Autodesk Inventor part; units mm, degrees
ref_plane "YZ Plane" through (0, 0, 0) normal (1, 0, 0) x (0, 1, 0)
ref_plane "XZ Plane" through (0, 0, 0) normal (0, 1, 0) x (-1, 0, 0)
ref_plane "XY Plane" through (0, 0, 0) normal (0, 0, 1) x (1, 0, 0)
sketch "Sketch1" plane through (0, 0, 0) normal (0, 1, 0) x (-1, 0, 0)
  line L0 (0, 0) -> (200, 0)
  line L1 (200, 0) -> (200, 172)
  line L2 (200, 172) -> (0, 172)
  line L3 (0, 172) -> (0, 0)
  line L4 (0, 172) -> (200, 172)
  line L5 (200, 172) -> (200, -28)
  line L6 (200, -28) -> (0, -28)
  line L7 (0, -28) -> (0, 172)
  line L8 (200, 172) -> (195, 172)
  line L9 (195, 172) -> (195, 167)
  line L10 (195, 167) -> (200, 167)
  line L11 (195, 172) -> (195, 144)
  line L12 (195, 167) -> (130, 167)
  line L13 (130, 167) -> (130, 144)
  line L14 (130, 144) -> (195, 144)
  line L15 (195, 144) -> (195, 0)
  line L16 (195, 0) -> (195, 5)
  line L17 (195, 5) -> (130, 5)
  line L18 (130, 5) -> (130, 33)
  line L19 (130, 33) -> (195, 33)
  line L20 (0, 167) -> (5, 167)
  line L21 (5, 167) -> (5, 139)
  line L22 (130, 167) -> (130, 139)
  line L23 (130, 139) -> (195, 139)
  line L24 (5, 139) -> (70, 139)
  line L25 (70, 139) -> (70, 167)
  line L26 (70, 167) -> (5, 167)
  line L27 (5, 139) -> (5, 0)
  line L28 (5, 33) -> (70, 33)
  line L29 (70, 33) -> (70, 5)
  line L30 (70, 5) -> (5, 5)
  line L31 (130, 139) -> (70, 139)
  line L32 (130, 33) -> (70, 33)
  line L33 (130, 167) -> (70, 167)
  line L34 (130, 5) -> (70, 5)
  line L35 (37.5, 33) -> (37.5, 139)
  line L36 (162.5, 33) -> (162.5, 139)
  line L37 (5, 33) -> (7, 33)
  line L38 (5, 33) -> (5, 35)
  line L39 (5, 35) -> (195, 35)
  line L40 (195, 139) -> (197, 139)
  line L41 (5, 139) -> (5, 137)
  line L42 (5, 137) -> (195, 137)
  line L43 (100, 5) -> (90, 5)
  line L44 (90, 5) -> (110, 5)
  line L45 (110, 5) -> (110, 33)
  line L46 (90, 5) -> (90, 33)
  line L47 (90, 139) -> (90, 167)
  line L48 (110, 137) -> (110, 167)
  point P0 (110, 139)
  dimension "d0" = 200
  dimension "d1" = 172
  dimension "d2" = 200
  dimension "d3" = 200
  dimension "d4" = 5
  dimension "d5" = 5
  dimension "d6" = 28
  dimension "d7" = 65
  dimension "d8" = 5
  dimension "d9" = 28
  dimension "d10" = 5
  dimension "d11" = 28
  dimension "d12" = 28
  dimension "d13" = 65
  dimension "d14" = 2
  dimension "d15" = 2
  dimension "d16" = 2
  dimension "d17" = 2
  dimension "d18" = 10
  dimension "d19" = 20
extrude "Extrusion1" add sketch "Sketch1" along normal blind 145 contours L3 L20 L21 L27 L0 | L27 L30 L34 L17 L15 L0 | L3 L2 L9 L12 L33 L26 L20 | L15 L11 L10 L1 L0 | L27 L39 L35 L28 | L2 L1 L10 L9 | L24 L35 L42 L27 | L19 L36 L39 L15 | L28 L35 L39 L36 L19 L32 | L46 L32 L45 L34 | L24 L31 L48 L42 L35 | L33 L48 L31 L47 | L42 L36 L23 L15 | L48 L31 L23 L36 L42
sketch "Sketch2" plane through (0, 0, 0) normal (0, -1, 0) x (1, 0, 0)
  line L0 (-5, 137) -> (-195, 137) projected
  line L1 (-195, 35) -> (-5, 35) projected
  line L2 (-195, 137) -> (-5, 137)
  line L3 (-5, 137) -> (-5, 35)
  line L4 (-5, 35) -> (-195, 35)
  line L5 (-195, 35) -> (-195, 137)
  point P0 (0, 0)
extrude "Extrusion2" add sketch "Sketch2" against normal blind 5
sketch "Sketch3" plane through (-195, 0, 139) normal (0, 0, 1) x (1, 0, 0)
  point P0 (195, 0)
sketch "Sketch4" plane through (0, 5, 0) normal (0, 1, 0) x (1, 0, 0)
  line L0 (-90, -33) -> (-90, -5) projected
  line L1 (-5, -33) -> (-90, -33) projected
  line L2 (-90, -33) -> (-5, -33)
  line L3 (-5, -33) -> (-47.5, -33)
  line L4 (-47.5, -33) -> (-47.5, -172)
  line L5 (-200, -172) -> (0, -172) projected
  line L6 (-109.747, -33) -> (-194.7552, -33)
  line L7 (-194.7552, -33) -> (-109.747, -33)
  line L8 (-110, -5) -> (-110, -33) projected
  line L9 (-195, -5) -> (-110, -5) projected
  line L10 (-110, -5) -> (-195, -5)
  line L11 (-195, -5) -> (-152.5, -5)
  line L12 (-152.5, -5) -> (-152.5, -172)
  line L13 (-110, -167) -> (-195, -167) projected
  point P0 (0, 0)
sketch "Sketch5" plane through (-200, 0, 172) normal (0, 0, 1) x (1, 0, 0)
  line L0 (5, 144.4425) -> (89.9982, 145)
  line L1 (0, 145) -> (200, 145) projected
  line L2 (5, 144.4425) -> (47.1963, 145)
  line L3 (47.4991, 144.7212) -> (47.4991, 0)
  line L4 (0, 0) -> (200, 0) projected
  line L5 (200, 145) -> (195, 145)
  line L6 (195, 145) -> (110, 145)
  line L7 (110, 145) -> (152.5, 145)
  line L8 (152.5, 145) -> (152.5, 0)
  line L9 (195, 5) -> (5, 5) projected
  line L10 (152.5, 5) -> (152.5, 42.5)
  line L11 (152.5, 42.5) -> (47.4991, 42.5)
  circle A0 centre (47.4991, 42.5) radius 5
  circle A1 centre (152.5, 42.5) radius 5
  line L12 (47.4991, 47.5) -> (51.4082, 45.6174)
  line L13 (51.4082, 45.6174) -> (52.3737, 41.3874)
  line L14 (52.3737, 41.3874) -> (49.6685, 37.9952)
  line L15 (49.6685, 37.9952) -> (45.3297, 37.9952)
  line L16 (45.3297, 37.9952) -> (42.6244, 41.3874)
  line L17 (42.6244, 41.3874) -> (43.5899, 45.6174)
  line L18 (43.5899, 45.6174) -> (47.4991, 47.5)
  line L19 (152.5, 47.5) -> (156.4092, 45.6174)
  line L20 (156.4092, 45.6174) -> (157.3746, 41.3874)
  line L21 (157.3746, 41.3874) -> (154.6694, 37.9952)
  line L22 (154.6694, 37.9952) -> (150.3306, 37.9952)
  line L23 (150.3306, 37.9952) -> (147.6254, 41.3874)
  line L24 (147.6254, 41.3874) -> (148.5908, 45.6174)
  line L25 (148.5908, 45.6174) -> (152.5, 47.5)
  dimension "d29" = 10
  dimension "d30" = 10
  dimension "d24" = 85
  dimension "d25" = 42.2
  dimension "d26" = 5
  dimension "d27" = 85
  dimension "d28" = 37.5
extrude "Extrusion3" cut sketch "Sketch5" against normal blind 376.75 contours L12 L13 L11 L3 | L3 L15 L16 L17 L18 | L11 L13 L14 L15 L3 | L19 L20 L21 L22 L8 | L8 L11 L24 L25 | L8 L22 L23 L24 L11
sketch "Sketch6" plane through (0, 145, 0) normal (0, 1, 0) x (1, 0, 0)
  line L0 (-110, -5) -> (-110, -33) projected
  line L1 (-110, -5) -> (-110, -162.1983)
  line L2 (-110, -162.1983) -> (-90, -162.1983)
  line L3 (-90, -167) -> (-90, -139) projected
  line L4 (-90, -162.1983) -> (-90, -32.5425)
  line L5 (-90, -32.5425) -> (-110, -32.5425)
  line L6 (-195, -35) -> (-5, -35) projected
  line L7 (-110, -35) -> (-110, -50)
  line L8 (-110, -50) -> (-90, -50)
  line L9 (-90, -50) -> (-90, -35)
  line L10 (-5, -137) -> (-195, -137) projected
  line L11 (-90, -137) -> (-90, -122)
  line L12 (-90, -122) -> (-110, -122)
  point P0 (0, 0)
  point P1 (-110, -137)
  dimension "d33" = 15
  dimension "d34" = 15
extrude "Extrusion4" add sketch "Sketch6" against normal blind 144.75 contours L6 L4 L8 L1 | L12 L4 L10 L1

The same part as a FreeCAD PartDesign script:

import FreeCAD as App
import Part
import Sketcher

doc = App.newDocument("Part")
body = doc.addObject("PartDesign::Body", "Body")

sketch1 = body.newObject("Sketcher::SketchObject", "Sketch")
sketch1.AttachmentSupport = (doc.getObject("XZ_Plane"), [""])
sketch1.MapMode = "FlatFace"
sketch1.addGeometry(Part.LineSegment(App.Vector(0, 0, 0), App.Vector(-200, 0, 0)), False)
sketch1.addGeometry(Part.LineSegment(App.Vector(-200, 0, 0), App.Vector(-200, 172, 0)), False)
sketch1.addGeometry(Part.LineSegment(App.Vector(-200, 172, 0), App.Vector(0, 172, 0)), False)
sketch1.addGeometry(Part.LineSegment(App.Vector(0, 172, 0), App.Vector(0, 0, 0)), False)
sketch1.addGeometry(Part.LineSegment(App.Vector(-5, 139, 0), App.Vector(-5, 167, 0)), False)
sketch1.addGeometry(Part.LineSegment(App.Vector(-5, 167, 0), App.Vector(-90, 167, 0)), False)
sketch1.addGeometry(Part.LineSegment(App.Vector(-90, 167, 0), App.Vector(-90, 139, 0)), False)
sketch1.addGeometry(Part.LineSegment(App.Vector(-90, 139, 0), App.Vector(-5, 139, 0)), False)
sketch1.addGeometry(Part.LineSegment(App.Vector(-5, 35, 0), App.Vector(-5, 137, 0)), False)
sketch1.addGeometry(Part.LineSegment(App.Vector(-5, 137, 0), App.Vector(-195, 137, 0)), False)
sketch1.addGeometry(Part.LineSegment(App.Vector(-195, 137, 0), App.Vector(-195, 35, 0)), False)
sketch1.addGeometry(Part.LineSegment(App.Vector(-195, 35, 0), App.Vector(-5, 35, 0)), False)
sketch1.addGeometry(Part.LineSegment(App.Vector(-5, 5, 0), App.Vector(-5, 33, 0)), False)
sketch1.addGeometry(Part.LineSegment(App.Vector(-5, 33, 0), App.Vector(-90, 33, 0)), False)
sketch1.addGeometry(Part.LineSegment(App.Vector(-90, 33, 0), App.Vector(-90, 5, 0)), False)
sketch1.addGeometry(Part.LineSegment(App.Vector(-90, 5, 0), App.Vector(-5, 5, 0)), False)
sketch1.addGeometry(Part.LineSegment(App.Vector(-195, 167, 0), App.Vector(-195, 139, 0)), False)
sketch1.addGeometry(Part.LineSegment(App.Vector(-195, 139, 0), App.Vector(-110, 139, 0)), False)
sketch1.addGeometry(Part.LineSegment(App.Vector(-110, 139, 0), App.Vector(-110, 167, 0)), False)
sketch1.addGeometry(Part.LineSegment(App.Vector(-110, 167, 0), App.Vector(-195, 167, 0)), False)
sketch1.addGeometry(Part.LineSegment(App.Vector(-110, 5, 0), App.Vector(-110, 33, 0)), False)
sketch1.addGeometry(Part.LineSegment(App.Vector(-110, 33, 0), App.Vector(-195, 33, 0)), False)
sketch1.addGeometry(Part.LineSegment(App.Vector(-195, 33, 0), App.Vector(-195, 5, 0)), False)
sketch1.addGeometry(Part.LineSegment(App.Vector(-195, 5, 0), App.Vector(-110, 5, 0)), False)
sketch1.addConstraint(Sketcher.Constraint("Coincident", 0, 2, 1, 1))
sketch1.addConstraint(Sketcher.Constraint("Coincident", 1, 2, 2, 1))
sketch1.addConstraint(Sketcher.Constraint("Coincident", 2, 2, 3, 1))
sketch1.addConstraint(Sketcher.Constraint("Coincident", 3, 2, 0, 1))
sketch1.addConstraint(Sketcher.Constraint("Coincident", 4, 2, 5, 1))
sketch1.addConstraint(Sketcher.Constraint("Coincident", 5, 2, 6, 1))
sketch1.addConstraint(Sketcher.Constraint("Coincident", 6, 2, 7, 1))
sketch1.addConstraint(Sketcher.Constraint("Coincident", 7, 2, 4, 1))
sketch1.addConstraint(Sketcher.Constraint("Coincident", 8, 2, 9, 1))
sketch1.addConstraint(Sketcher.Constraint("Coincident", 9, 2, 10, 1))
sketch1.addConstraint(Sketcher.Constraint("Coincident", 10, 2, 11, 1))
sketch1.addConstraint(Sketcher.Constraint("Coincident", 11, 2, 8, 1))
sketch1.addConstraint(Sketcher.Constraint("Coincident", 12, 2, 13, 1))
sketch1.addConstraint(Sketcher.Constraint("Coincident", 13, 2, 14, 1))
sketch1.addConstraint(Sketcher.Constraint("Coincident", 14, 2, 15, 1))
sketch1.addConstraint(Sketcher.Constraint("Coincident", 15, 2, 12, 1))
sketch1.addConstraint(Sketcher.Constraint("Coincident", 16, 2, 17, 1))
sketch1.addConstraint(Sketcher.Constraint("Coincident", 17, 2, 18, 1))
sketch1.addConstraint(Sketcher.Constraint("Coincident", 18, 2, 19, 1))
sketch1.addConstraint(Sketcher.Constraint("Coincident", 19, 2, 16, 1))
sketch1.addConstraint(Sketcher.Constraint("Coincident", 20, 2, 21, 1))
sketch1.addConstraint(Sketcher.Constraint("Coincident", 21, 2, 22, 1))
sketch1.addConstraint(Sketcher.Constraint("Coincident", 22, 2, 23, 1))
sketch1.addConstraint(Sketcher.Constraint("Coincident", 23, 2, 20, 1))
sketch1.addConstraint(Sketcher.Constraint("Horizontal", 0))
sketch1.addConstraint(Sketcher.Constraint("Vertical", 1))
sketch1.addConstraint(Sketcher.Constraint("Horizontal", 2))
sketch1.addConstraint(Sketcher.Constraint("Vertical", 3))
sketch1.addConstraint(Sketcher.Constraint("Vertical", 4))
sketch1.addConstraint(Sketcher.Constraint("Horizontal", 5))
sketch1.addConstraint(Sketcher.Constraint("Vertical", 6))
sketch1.addConstraint(Sketcher.Constraint("Horizontal", 7))
sketch1.addConstraint(Sketcher.Constraint("Vertical", 8))
sketch1.addConstraint(Sketcher.Constraint("Horizontal", 9))
sketch1.addConstraint(Sketcher.Constraint("Vertical", 10))
sketch1.addConstraint(Sketcher.Constraint("Horizontal", 11))
sketch1.addConstraint(Sketcher.Constraint("Vertical", 12))
sketch1.addConstraint(Sketcher.Constraint("Horizontal", 13))
sketch1.addConstraint(Sketcher.Constraint("Vertical", 14))
sketch1.addConstraint(Sketcher.Constraint("Horizontal", 15))
sketch1.addConstraint(Sketcher.Constraint("Vertical", 16))
sketch1.addConstraint(Sketcher.Constraint("Horizontal", 17))
sketch1.addConstraint(Sketcher.Constraint("Vertical", 18))
sketch1.addConstraint(Sketcher.Constraint("Horizontal", 19))
sketch1.addConstraint(Sketcher.Constraint("Vertical", 20))
sketch1.addConstraint(Sketcher.Constraint("Horizontal", 21))
sketch1.addConstraint(Sketcher.Constraint("Vertical", 22))
sketch1.addConstraint(Sketcher.Constraint("Horizontal", 23))
sketch1.addConstraint(Sketcher.Constraint("Coincident", 3, 2, -1, 1))
sketch1.addConstraint(Sketcher.Constraint("Horizontal", 7, 2, 16, 2))
sketch1.addConstraint(Sketcher.Constraint("Horizontal", 5, 2, 18, 2))
sketch1.addConstraint(Sketcher.Constraint("Horizontal", 13, 2, 20, 2))
sketch1.addConstraint(Sketcher.Constraint("Horizontal", 15, 2, 22, 2))
sketch1.addConstraint(Sketcher.Constraint("Vertical", 7, 2, 8, 2))
sketch1.addConstraint(Sketcher.Constraint("Vertical", 11, 2, 12, 2))
sketch1.addConstraint(Sketcher.Constraint("Vertical", 6, 2, 13, 2))
sketch1.addConstraint(Sketcher.Constraint("Vertical", 10, 2, 16, 2))
sketch1.addConstraint(Sketcher.Constraint("Vertical", 18, 2, 20, 2))
sketch1.addConstraint(Sketcher.Constraint("Vertical", 19, 2, 21, 2))
sketch1.addConstraint(Sketcher.Constraint("Equal", 15, 17))
sketch1.addConstraint(Sketcher.Constraint("Equal", 6, 12))
sketch1.addConstraint(Sketcher.Constraint("DistanceX", 0, 2, 0, 1, 200.0))
sketch1.addConstraint(Sketcher.Constraint("DistanceY", 1, 1, 1, 2, 172.0))
sketch1.addConstraint(Sketcher.Constraint("DistanceY", 4, 1, 4, 2, 28.0))
sketch1.addConstraint(Sketcher.Constraint("DistanceX", 4, 2, -1, 1, 5.0))
sketch1.addConstraint(Sketcher.Constraint("DistanceY", -1, 1, 14, 2, 5.0))
sketch1.addConstraint(Sketcher.Constraint("DistanceY", 4, 2, 2, 2, 5.0))
sketch1.addConstraint(Sketcher.Constraint("DistanceY", 8, 2, 7, 2, 2.0))
sketch1.addConstraint(Sketcher.Constraint("DistanceX", 1, 2, 9, 2, 5.0))
sketch1.addConstraint(Sketcher.Constraint("DistanceY", 12, 2, 11, 2, 2.0))
sketch1.addConstraint(Sketcher.Constraint("DistanceX", 17, 2, 6, 2, 20.0))
pad1 = body.newObject("PartDesign::Pad", "Pad")
pad1.Profile = sketch1
pad1.Length = 145
pad1.Reversed = True

sketch2 = body.newObject("Sketcher::SketchObject", "Sketch001")
sketch2.AttachmentSupport = (doc.getObject("XZ_Plane"), [""])
sketch2.MapMode = "FlatFace"
sketch2.addGeometry(Part.LineSegment(App.Vector(-5, 35, 0), App.Vector(-5, 137, 0)), False)
sketch2.addGeometry(Part.LineSegment(App.Vector(-5, 137, 0), App.Vector(-195, 137, 0)), False)
sketch2.addGeometry(Part.LineSegment(App.Vector(-195, 137, 0), App.Vector(-195, 35, 0)), False)
sketch2.addGeometry(Part.LineSegment(App.Vector(-195, 35, 0), App.Vector(-5, 35, 0)), False)
sketch2.addConstraint(Sketcher.Constraint("Coincident", 0, 2, 1, 1))
sketch2.addConstraint(Sketcher.Constraint("Coincident", 1, 2, 2, 1))
sketch2.addConstraint(Sketcher.Constraint("Coincident", 2, 2, 3, 1))
sketch2.addConstraint(Sketcher.Constraint("Coincident", 3, 2, 0, 1))
sketch2.addConstraint(Sketcher.Constraint("Vertical", 0))
sketch2.addConstraint(Sketcher.Constraint("Horizontal", 1))
sketch2.addConstraint(Sketcher.Constraint("Vertical", 2))
sketch2.addConstraint(Sketcher.Constraint("Horizontal", 3))
sketch2.addConstraint(Sketcher.Constraint("DistanceX", 1, 2, 1, 1, 190.0))
sketch2.addConstraint(Sketcher.Constraint("DistanceY", 0, 1, 0, 2, 102.0))
sketch2.addConstraint(Sketcher.Constraint("DistanceX", 0, 2, -1, 1, 5.0))
sketch2.addConstraint(Sketcher.Constraint("DistanceY", -1, 1, 0, 2, 137.0))
pad2 = body.newObject("PartDesign::Pad", "Pad001")
pad2.Profile = sketch2
pad2.Length = 5
pad2.Reversed = True

sketch3 = body.newObject("Sketcher::SketchObject", "Sketch002")
sketch3.AttachmentSupport = (doc.getObject("XY_Plane"), [""])
sketch3.MapMode = "FlatFace"
sketch3.AttachmentOffset = App.Placement(App.Vector(0, 0, 172), App.Rotation())
sketch3.addGeometry(Part.LineSegment(App.Vector(-148.6, 45.6, 0), App.Vector(-152.5, 47.5, 0)), False)
sketch3.addGeometry(Part.LineSegment(App.Vector(-152.5, 47.5, 0), App.Vector(-156.4, 45.6, 0)), False)
sketch3.addGeometry(Part.LineSegment(App.Vector(-156.4, 45.6, 0), App.Vector(-157.4, 41.4, 0)), False)
sketch3.addGeometry(Part.LineSegment(App.Vector(-157.4, 41.4, 0), App.Vector(-154.7, 38, 0)), False)
sketch3.addGeometry(Part.LineSegment(App.Vector(-154.7, 38, 0), App.Vector(-150.3, 38, 0)), False)
sketch3.addGeometry(Part.LineSegment(App.Vector(-150.3, 38, 0), App.Vector(-147.6, 41.4, 0)), False)
sketch3.addGeometry(Part.LineSegment(App.Vector(-147.6, 41.4, 0), App.Vector(-148.6, 45.6, 0)), False)
sketch3.addGeometry(Part.LineSegment(App.Vector(-43.6, 45.6, 0), App.Vector(-47.5, 47.5, 0)), False)
sketch3.addGeometry(Part.LineSegment(App.Vector(-47.5, 47.5, 0), App.Vector(-51.4, 45.6, 0)), False)
sketch3.addGeometry(Part.LineSegment(App.Vector(-51.4, 45.6, 0), App.Vector(-52.4, 41.4, 0)), False)
sketch3.addGeometry(Part.LineSegment(App.Vector(-52.4, 41.4, 0), App.Vector(-49.7, 38, 0)), False)
sketch3.addGeometry(Part.LineSegment(App.Vector(-49.7, 38, 0), App.Vector(-45.3, 38, 0)), False)
sketch3.addGeometry(Part.LineSegment(App.Vector(-45.3, 38, 0), App.Vector(-42.6, 41.4, 0)), False)
sketch3.addGeometry(Part.LineSegment(App.Vector(-42.6, 41.4, 0), App.Vector(-43.6, 45.6, 0)), False)
sketch3.addConstraint(Sketcher.Constraint("Coincident", 0, 2, 1, 1))
sketch3.addConstraint(Sketcher.Constraint("Coincident", 1, 2, 2, 1))
sketch3.addConstraint(Sketcher.Constraint("Coincident", 2, 2, 3, 1))
sketch3.addConstraint(Sketcher.Constraint("Coincident", 3, 2, 4, 1))
sketch3.addConstraint(Sketcher.Constraint("Coincident", 4, 2, 5, 1))
sketch3.addConstraint(Sketcher.Constraint("Coincident", 5, 2, 6, 1))
sketch3.addConstraint(Sketcher.Constraint("Coincident", 6, 2, 0, 1))
sketch3.addConstraint(Sketcher.Constraint("Coincident", 7, 2, 8, 1))
sketch3.addConstraint(Sketcher.Constraint("Coincident", 8, 2, 9, 1))
sketch3.addConstraint(Sketcher.Constraint("Coincident", 9, 2, 10, 1))
sketch3.addConstraint(Sketcher.Constraint("Coincident", 10, 2, 11, 1))
sketch3.addConstraint(Sketcher.Constraint("Coincident", 11, 2, 12, 1))
sketch3.addConstraint(Sketcher.Constraint("Coincident", 12, 2, 13, 1))
sketch3.addConstraint(Sketcher.Constraint("Coincident", 13, 2, 7, 1))
sketch3.addConstraint(Sketcher.Constraint("Horizontal", 4))
sketch3.addConstraint(Sketcher.Constraint("Horizontal", 11))
sketch3.addConstraint(Sketcher.Constraint("Parallel", 0, 7))
sketch3.addConstraint(Sketcher.Constraint("Parallel", 1, 8))
sketch3.addConstraint(Sketcher.Constraint("Parallel", 2, 9))
sketch3.addConstraint(Sketcher.Constraint("Parallel", 3, 10))
sketch3.addConstraint(Sketcher.Constraint("Parallel", 5, 12))
sketch3.addConstraint(Sketcher.Constraint("Parallel", 6, 13))
sketch3.addConstraint(Sketcher.Constraint("Horizontal", 2, 2, 5, 2))
sketch3.addConstraint(Sketcher.Constraint("Horizontal", 1, 2, 6, 2))
sketch3.addConstraint(Sketcher.Constraint("Horizontal", 0, 2, 7, 2))
sketch3.addConstraint(Sketcher.Constraint("Horizontal", 6, 2, 8, 2))
sketch3.addConstraint(Sketcher.Constraint("Horizontal", 5, 2, 9, 2))
sketch3.addConstraint(Sketcher.Constraint("Horizontal", 4, 2, 10, 2))
sketch3.addConstraint(Sketcher.Constraint("Horizontal", 9, 2, 12, 2))
sketch3.addConstraint(Sketcher.Constraint("Horizontal", 8, 2, 13, 2))
sketch3.addConstraint(Sketcher.Constraint("Equal", 0, 1))
sketch3.addConstraint(Sketcher.Constraint("Equal", 1, 2))
sketch3.addConstraint(Sketcher.Constraint("Equal", 2, 3))
sketch3.addConstraint(Sketcher.Constraint("Equal", 3, 5))
sketch3.addConstraint(Sketcher.Constraint("Equal", 5, 6))
sketch3.addConstraint(Sketcher.Constraint("DistanceY", -1, 1, 0, 2, 47.5))
sketch3.addConstraint(Sketcher.Constraint("DistanceX", 7, 2, -1, 1, 47.5))
sketch3.addConstraint(Sketcher.Constraint("DistanceX", 1, 2, -1, 1, 156.41))
sketch3.addConstraint(Sketcher.Constraint("DistanceY", 2, 2, 1, 2, 4.23))
sketch3.addConstraint(Sketcher.Constraint("Distance", 1, 4.339))
sketch3.addConstraint(Sketcher.Constraint("DistanceX", 4, 1, 4, 2, 4.3388))
sketch3.addConstraint(Sketcher.Constraint("DistanceX", 0, 2, -1, 1, 152.501))
pocket1 = body.newObject("PartDesign::Pocket", "Pocket")
pocket1.Profile = sketch3
pocket1.Length = 376.75

sketch4 = body.newObject("Sketcher::SketchObject", "Sketch003")
sketch4.AttachmentSupport = (doc.getObject("XZ_Plane"), [""])
sketch4.MapMode = "FlatFace"
sketch4.AttachmentOffset = App.Placement(App.Vector(0, 0, -145), App.Rotation())
sketch4.addGeometry(Part.LineSegment(App.Vector(-90, 35, 0), App.Vector(-110, 35, 0)), False)
sketch4.addGeometry(Part.LineSegment(App.Vector(-110, 35, 0), App.Vector(-110, 50, 0)), False)
sketch4.addGeometry(Part.LineSegment(App.Vector(-110, 50, 0), App.Vector(-90, 50, 0)), False)
sketch4.addGeometry(Part.LineSegment(App.Vector(-90, 50, 0), App.Vector(-90, 35, 0)), False)
sketch4.addGeometry(Part.LineSegment(App.Vector(-90, 122, 0), App.Vector(-110, 122, 0)), False)
sketch4.addGeometry(Part.LineSegment(App.Vector(-110, 122, 0), App.Vector(-110, 137, 0)), False)
sketch4.addGeometry(Part.LineSegment(App.Vector(-110, 137, 0), App.Vector(-90, 137, 0)), False)
sketch4.addGeometry(Part.LineSegment(App.Vector(-90, 137, 0), App.Vector(-90, 122, 0)), False)
sketch4.addConstraint(Sketcher.Constraint("Coincident", 0, 2, 1, 1))
sketch4.addConstraint(Sketcher.Constraint("Coincident", 1, 2, 2, 1))
sketch4.addConstraint(Sketcher.Constraint("Coincident", 2, 2, 3, 1))
sketch4.addConstraint(Sketcher.Constraint("Coincident", 3, 2, 0, 1))
sketch4.addConstraint(Sketcher.Constraint("Coincident", 4, 2, 5, 1))
sketch4.addConstraint(Sketcher.Constraint("Coincident", 5, 2, 6, 1))
sketch4.addConstraint(Sketcher.Constraint("Coincident", 6, 2, 7, 1))
sketch4.addConstraint(Sketcher.Constraint("Coincident", 7, 2, 4, 1))
sketch4.addConstraint(Sketcher.Constraint("Horizontal", 0))
sketch4.addConstraint(Sketcher.Constraint("Vertical", 1))
sketch4.addConstraint(Sketcher.Constraint("Horizontal", 2))
sketch4.addConstraint(Sketcher.Constraint("Vertical", 3))
sketch4.addConstraint(Sketcher.Constraint("Horizontal", 4))
sketch4.addConstraint(Sketcher.Constraint("Vertical", 5))
sketch4.addConstraint(Sketcher.Constraint("Horizontal", 6))
sketch4.addConstraint(Sketcher.Constraint("Vertical", 7))
sketch4.addConstraint(Sketcher.Constraint("Vertical", 1, 2, 4, 2))
sketch4.addConstraint(Sketcher.Constraint("Vertical", 3, 2, 6, 2))
sketch4.addConstraint(Sketcher.Constraint("Equal", 3, 5))
sketch4.addConstraint(Sketcher.Constraint("DistanceY", 1, 1, 1, 2, 15.0))
sketch4.addConstraint(Sketcher.Constraint("DistanceX", 0, 2, 0, 1, 20.0))
sketch4.addConstraint(Sketcher.Constraint("DistanceX", 0, 2, -1, 1, 110.0))
sketch4.addConstraint(Sketcher.Constraint("DistanceY", -1, 1, 0, 2, 35.0))
sketch4.addConstraint(Sketcher.Constraint("DistanceY", -1, 1, 4, 2, 122.0))
pad3 = body.newObject("PartDesign::Pad", "Pad002")
pad3.Profile = sketch4
pad3.Length = 144.75

doc.recompute()
